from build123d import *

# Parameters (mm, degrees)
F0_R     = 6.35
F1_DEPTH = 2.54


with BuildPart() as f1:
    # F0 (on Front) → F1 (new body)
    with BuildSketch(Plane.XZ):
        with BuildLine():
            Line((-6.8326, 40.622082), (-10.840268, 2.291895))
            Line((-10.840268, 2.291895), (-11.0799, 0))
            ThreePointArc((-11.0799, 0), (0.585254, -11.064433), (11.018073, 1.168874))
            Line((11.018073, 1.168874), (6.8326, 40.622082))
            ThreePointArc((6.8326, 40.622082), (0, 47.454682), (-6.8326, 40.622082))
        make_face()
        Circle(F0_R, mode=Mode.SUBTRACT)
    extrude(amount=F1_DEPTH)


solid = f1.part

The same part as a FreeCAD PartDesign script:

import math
import FreeCAD as App
import Part
import Sketcher

V = App.Vector
Q = App.Units.Quantity

doc = App.newDocument("Part")
body = doc.addObject("PartDesign::Body", "Body")

# Sketch on XZ plane
sketch1 = doc.addObject("Sketcher::SketchObject", "Sketch")
body.addObject(sketch1)
sketch1.AttachmentSupport = (doc.XZ_Plane, [""])
sketch1.MapMode = "FlatFace"
sketch1.addGeometry(Part.LineSegment(V(-6.8, 40.6, 0), V(-10.8, 2.3, 0)), False)
sketch1.addGeometry(Part.LineSegment(V(-10.8, 2.3, 0), V(-11.1, 0, 0)), False)
sketch1.addGeometry(Part.ArcOfCircle(Part.Circle(V(0, 0, 0), V(0, 0, 1), 11.1), math.radians(180), math.radians(366)), False)
sketch1.addGeometry(Part.LineSegment(V(11, 1.2, 0), V(6.8, 40.6, 0)), False)
sketch1.addGeometry(Part.ArcOfCircle(Part.Circle(V(0, 40.6, 0), V(0, 0, 1), 6.8), math.radians(0), math.radians(180)), False)
sketch1.addGeometry(Part.Circle(V(0, 0, 0), V(0, 0, 1), 6.3), False)
sketch1.addConstraint(Sketcher.Constraint("Coincident", 0, 2, 1, 1))
sketch1.addConstraint(Sketcher.Constraint("Coincident", 1, 2, 2, 1))
sketch1.addConstraint(Sketcher.Constraint("Tangent", 2, 2, 3, 1))
sketch1.addConstraint(Sketcher.Constraint("Coincident", 3, 2, 4, 1))
sketch1.addConstraint(Sketcher.Constraint("Coincident", 4, 2, 0, 1))
sketch1.addConstraint(Sketcher.Constraint("Coincident", 2, 3, -1, 1))
sketch1.addConstraint(Sketcher.Constraint("Coincident", 5, 3, -1, 1))
sketch1.addConstraint(Sketcher.Constraint("Symmetric", 3, 2, 4, 2, -2))
sketch1.addConstraint(Sketcher.Constraint("PointOnObject", 1, 2, -1))
sketch1.addConstraint(Sketcher.Constraint("Parallel", 0, 1))
sketch1.addConstraint(Sketcher.Constraint("Horizontal", 4, 3, 3, 2))
sketch1.addConstraint(Sketcher.Constraint("Diameter", 5, Q("0.5 in")))
sketch1.addConstraint(Sketcher.Constraint("Radius", 4, Q("0.269 in")))
sketch1.addConstraint(Sketcher.Constraint("Radius", 2, 11.0799))
sketch1.addConstraint(Sketcher.Constraint("Distance", 3, 39.674599))
sketch1.addConstraint(Sketcher.Constraint("Distance", 0, 38.539131))
pad1 = doc.addObject("PartDesign::Pad", "Pad")
body.addObject(pad1)
pad1.Profile = sketch1
pad1.Length = Q("0.1 in")

doc.recompute()
